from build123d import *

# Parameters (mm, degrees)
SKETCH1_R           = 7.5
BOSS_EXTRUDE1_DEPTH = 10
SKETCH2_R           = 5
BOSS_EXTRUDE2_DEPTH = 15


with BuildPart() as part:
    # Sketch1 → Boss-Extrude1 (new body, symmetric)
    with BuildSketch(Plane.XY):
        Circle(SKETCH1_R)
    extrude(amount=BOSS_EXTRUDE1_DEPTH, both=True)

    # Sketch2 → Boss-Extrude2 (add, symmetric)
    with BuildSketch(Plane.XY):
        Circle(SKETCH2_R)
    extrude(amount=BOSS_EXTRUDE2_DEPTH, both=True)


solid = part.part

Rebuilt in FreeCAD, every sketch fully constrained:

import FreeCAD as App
import Part
import Sketcher
Q = App.Units.Quantity

doc = App.newDocument("Part")
body = doc.addObject("PartDesign::Body", "Body")

# Sketch on XY plane
sketch1 = body.newObject("Sketcher::SketchObject", "Sketch")
sketch1.AttachmentSupport = (doc.getObject("XY_Plane"), [""])
sketch1.MapMode = "FlatFace"
sketch1.addGeometry(Part.Circle(App.Vector(0, 0, 0), App.Vector(0, 0, 1), 8), False)
sketch1.addConstraint([
    Sketcher.Constraint("Coincident", 0, 3, -1, 1),
    Sketcher.Constraint("Diameter", 0, Q("15 mm")),
])
pad1 = body.newObject("PartDesign::Pad", "Pad")
pad1.Profile = sketch1
pad1.Length = 20
pad1.Midplane = True

# Sketch on XY plane
sketch2 = body.newObject("Sketcher::SketchObject", "Sketch001")
sketch2.AttachmentSupport = (doc.getObject("XY_Plane"), [""])
sketch2.MapMode = "FlatFace"
sketch2.addGeometry(Part.Circle(App.Vector(0, 0, 0), App.Vector(0, 0, 1), 5), False)
sketch2.addConstraint([
    Sketcher.Constraint("Coincident", 0, 3, -1, 1),
    Sketcher.Constraint("Diameter", 0, Q("10 mm")),
])
pad2 = body.newObject("PartDesign::Pad", "Pad001")
pad2.Profile = sketch2
pad2.Length = 30
pad2.Midplane = True

doc.recompute()
